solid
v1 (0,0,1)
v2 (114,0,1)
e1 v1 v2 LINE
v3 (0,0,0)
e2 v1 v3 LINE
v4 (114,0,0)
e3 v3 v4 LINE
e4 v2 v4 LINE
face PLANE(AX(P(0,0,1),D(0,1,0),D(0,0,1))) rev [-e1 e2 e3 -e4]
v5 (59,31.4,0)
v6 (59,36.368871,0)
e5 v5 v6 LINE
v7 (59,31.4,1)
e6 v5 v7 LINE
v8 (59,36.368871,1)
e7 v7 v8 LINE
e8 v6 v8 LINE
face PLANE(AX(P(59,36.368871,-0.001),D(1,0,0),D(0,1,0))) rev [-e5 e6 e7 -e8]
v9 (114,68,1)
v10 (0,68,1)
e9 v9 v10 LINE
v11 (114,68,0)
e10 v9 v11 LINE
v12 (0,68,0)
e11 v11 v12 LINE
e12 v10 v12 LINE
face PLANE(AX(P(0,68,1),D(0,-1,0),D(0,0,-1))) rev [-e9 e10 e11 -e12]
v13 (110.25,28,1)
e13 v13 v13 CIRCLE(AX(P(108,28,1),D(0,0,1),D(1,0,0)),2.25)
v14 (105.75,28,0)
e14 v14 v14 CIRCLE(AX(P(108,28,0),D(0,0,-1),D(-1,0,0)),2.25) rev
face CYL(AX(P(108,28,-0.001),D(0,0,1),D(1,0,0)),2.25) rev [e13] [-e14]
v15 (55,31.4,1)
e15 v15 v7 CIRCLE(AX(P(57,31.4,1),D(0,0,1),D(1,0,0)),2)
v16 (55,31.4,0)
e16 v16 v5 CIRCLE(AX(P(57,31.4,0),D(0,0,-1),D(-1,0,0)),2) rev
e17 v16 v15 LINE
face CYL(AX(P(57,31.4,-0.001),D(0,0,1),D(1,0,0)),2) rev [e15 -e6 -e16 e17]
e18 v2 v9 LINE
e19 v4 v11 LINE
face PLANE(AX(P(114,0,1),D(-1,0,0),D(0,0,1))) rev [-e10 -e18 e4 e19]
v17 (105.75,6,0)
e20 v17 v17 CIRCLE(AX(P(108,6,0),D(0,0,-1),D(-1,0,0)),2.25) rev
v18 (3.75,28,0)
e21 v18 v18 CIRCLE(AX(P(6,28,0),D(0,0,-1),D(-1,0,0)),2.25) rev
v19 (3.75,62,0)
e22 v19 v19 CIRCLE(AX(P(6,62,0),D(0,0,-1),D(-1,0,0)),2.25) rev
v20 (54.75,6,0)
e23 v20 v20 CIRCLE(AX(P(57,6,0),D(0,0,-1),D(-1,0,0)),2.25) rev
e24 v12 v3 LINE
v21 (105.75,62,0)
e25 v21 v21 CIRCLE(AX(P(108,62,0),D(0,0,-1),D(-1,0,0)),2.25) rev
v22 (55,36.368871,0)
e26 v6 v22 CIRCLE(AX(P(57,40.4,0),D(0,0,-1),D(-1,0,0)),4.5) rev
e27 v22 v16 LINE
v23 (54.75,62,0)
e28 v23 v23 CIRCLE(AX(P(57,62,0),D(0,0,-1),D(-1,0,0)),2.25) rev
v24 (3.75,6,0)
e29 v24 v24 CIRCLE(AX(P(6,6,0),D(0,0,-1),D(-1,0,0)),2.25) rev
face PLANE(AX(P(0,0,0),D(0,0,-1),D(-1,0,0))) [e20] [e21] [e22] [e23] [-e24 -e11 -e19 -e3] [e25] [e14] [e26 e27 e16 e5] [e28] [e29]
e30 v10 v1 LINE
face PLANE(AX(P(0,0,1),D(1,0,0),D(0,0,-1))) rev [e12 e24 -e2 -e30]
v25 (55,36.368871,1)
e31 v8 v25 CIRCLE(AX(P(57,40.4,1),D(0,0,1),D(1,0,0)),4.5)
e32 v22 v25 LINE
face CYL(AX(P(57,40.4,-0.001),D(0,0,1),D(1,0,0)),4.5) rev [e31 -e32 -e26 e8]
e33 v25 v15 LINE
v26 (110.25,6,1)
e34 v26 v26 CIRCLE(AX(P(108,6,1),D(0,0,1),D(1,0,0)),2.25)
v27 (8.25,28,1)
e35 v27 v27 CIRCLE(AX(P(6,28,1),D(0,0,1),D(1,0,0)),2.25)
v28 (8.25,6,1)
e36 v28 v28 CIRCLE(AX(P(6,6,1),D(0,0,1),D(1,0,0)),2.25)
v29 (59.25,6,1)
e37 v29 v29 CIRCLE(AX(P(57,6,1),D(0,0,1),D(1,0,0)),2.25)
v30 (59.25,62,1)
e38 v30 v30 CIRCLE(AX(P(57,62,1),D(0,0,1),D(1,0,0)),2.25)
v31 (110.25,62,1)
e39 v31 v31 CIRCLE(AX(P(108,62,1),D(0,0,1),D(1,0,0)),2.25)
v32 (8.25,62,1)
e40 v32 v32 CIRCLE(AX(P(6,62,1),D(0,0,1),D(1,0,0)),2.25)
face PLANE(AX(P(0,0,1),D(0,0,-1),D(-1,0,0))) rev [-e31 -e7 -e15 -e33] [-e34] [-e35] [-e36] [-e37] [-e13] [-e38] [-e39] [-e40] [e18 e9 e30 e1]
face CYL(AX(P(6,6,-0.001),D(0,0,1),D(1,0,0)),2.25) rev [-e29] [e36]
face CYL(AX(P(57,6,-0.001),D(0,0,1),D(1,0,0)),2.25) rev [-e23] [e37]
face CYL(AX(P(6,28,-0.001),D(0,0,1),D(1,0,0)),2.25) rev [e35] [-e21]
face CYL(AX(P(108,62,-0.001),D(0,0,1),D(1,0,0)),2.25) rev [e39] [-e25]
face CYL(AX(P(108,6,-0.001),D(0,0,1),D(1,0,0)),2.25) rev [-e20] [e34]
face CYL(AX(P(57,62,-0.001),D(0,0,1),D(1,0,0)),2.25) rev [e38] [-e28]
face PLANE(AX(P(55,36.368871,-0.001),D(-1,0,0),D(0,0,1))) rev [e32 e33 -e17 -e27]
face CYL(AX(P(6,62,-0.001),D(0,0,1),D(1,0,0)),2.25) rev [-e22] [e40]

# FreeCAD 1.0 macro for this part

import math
import FreeCAD as App
import Part
import Sketcher
from FreeCAD import Vector
Q = App.Units.Quantity

doc = App.newDocument("Part")
body = doc.addObject("PartDesign::Body", "Body")

# Sketch on XY plane
sketch1 = doc.addObject("Sketcher::SketchObject", "Sketch")
body.addObject(sketch1)
sketch1.AttachmentSupport = (doc.XY_Plane, [""])
sketch1.MapMode = "FlatFace"
sketch1.addGeometry(Part.LineSegment(Vector(0, 68, 0), Vector(0, 0, 0)), False)
sketch1.addGeometry(Part.LineSegment(Vector(0, 0, 0), Vector(114, 0, 0)), False)
sketch1.addGeometry(Part.LineSegment(Vector(114, 0, 0), Vector(114, 68, 0)), False)
sketch1.addGeometry(Part.LineSegment(Vector(114, 68, 0), Vector(0, 68, 0)), False)
sketch1.addConstraint(Sketcher.Constraint("Coincident", 0, 2, 1, 1))
sketch1.addConstraint(Sketcher.Constraint("Coincident", 1, 2, 2, 1))
sketch1.addConstraint(Sketcher.Constraint("Coincident", 2, 2, 3, 1))
sketch1.addConstraint(Sketcher.Constraint("Coincident", 3, 2, 0, 1))
sketch1.addConstraint(Sketcher.Constraint("Vertical", 0))
sketch1.addConstraint(Sketcher.Constraint("Horizontal", 1))
sketch1.addConstraint(Sketcher.Constraint("Vertical", 2))
sketch1.addConstraint(Sketcher.Constraint("Horizontal", 3))
sketch1.addConstraint(Sketcher.Constraint("Coincident", 0, 2, -1, 1))
sketch1.addConstraint(Sketcher.Constraint("DistanceX", 1, 1, 1, 2, Q("114 mm")))
sketch1.addConstraint(Sketcher.Constraint("DistanceY", 0, 2, 0, 1, Q("68 mm")))
pad1 = doc.addObject("PartDesign::Pad", "Pad")
body.addObject(pad1)
pad1.Profile = sketch1
pad1.Length = 1

# Sketch on XY plane
sketch2 = doc.addObject("Sketcher::SketchObject", "Sketch001")
body.addObject(sketch2)
sketch2.AttachmentSupport = (doc.XY_Plane, [""])
sketch2.MapMode = "FlatFace"
sketch2.AttachmentOffset = App.Placement(Vector(0, 0, 1), App.Rotation())
sketch2.addGeometry(Part.Circle(Vector(6, 62, 0), Vector(0, 0, 1), 2.2), False)
sketch2.addConstraint(Sketcher.Constraint("Diameter", 0, Q("4.5 mm")))
sketch2.addConstraint(Sketcher.Constraint("DistanceX", -1, 1, 0, 3, Q("6 mm")))
sketch2.addConstraint(Sketcher.Constraint("DistanceY", -1, 1, 0, 3, Q("62 mm")))
pocket1 = doc.addObject("PartDesign::Pocket", "Pocket")
body.addObject(pocket1)
pocket1.Profile = sketch2
pocket1.Type = "UpToFirst"

# Sketch on XY plane
sketch3 = doc.addObject("Sketcher::SketchObject", "Sketch002")
body.addObject(sketch3)
sketch3.AttachmentSupport = (doc.XY_Plane, [""])
sketch3.MapMode = "FlatFace"
sketch3.AttachmentOffset = App.Placement(Vector(0, 0, 1), App.Rotation())
sketch3.addGeometry(Part.Circle(Vector(6, 28, 0), Vector(0, 0, 1), 2.2), False)
sketch3.addConstraint(Sketcher.Constraint("Diameter", 0, Q("4.5 mm")))
sketch3.addConstraint(Sketcher.Constraint("DistanceX", -1, 1, 0, 3, Q("6 mm")))
sketch3.addConstraint(Sketcher.Constraint("DistanceY", -1, 1, 0, 3, Q("28 mm")))
pocket2 = doc.addObject("PartDesign::Pocket", "Pocket001")
body.addObject(pocket2)
pocket2.Profile = sketch3
pocket2.Type = "UpToFirst"

# Sketch on XY plane
sketch4 = doc.addObject("Sketcher::SketchObject", "Sketch003")
body.addObject(sketch4)
sketch4.AttachmentSupport = (doc.XY_Plane, [""])
sketch4.MapMode = "FlatFace"
sketch4.AttachmentOffset = App.Placement(Vector(0, 0, 1), App.Rotation())
sketch4.addGeometry(Part.Circle(Vector(6, 6, 0), Vector(0, 0, 1), 2.2), False)
sketch4.addConstraint(Sketcher.Constraint("Diameter", 0, Q("4.5 mm")))
sketch4.addConstraint(Sketcher.Constraint("DistanceX", -1, 1, 0, 3, Q("6 mm")))
sketch4.addConstraint(Sketcher.Constraint("DistanceY", -1, 1, 0, 3, Q("6 mm")))
pocket3 = doc.addObject("PartDesign::Pocket", "Pocket002")
body.addObject(pocket3)
pocket3.Profile = sketch4
pocket3.Type = "UpToFirst"

# Sketch on XY plane
sketch5 = doc.addObject("Sketcher::SketchObject", "Sketch004")
body.addObject(sketch5)
sketch5.AttachmentSupport = (doc.XY_Plane, [""])
sketch5.MapMode = "FlatFace"
sketch5.AttachmentOffset = App.Placement(Vector(0, 0, 1), App.Rotation())
sketch5.addGeometry(Part.Circle(Vector(57, 6, 0), Vector(0, 0, 1), 2.2), False)
sketch5.addConstraint(Sketcher.Constraint("Diameter", 0, Q("4.5 mm")))
sketch5.addConstraint(Sketcher.Constraint("DistanceX", -1, 1, 0, 3, Q("57 mm")))
sketch5.addConstraint(Sketcher.Constraint("DistanceY", -1, 1, 0, 3, Q("6 mm")))
pocket4 = doc.addObject("PartDesign::Pocket", "Pocket003")
body.addObject(pocket4)
pocket4.Profile = sketch5
pocket4.Type = "UpToFirst"

# Sketch on XY plane
sketch6 = doc.addObject("Sketcher::SketchObject", "Sketch005")
body.addObject(sketch6)
sketch6.AttachmentSupport = (doc.XY_Plane, [""])
sketch6.MapMode = "FlatFace"
sketch6.AttachmentOffset = App.Placement(Vector(0, 0, 1), App.Rotation())
sketch6.addGeometry(Part.Circle(Vector(57, 62, 0), Vector(0, 0, 1), 2.2), False)
sketch6.addConstraint(Sketcher.Constraint("Diameter", 0, Q("4.5 mm")))
sketch6.addConstraint(Sketcher.Constraint("DistanceX", -1, 1, 0, 3, Q("57 mm")))
sketch6.addConstraint(Sketcher.Constraint("DistanceY", -1, 1, 0, 3, Q("62 mm")))
pocket5 = doc.addObject("PartDesign::Pocket", "Pocket004")
body.addObject(pocket5)
pocket5.Profile = sketch6
pocket5.Type = "UpToFirst"

# Sketch on XY plane
sketch7 = doc.addObject("Sketcher::SketchObject", "Sketch006")
body.addObject(sketch7)
sketch7.AttachmentSupport = (doc.XY_Plane, [""])
sketch7.MapMode = "FlatFace"
sketch7.AttachmentOffset = App.Placement(Vector(0, 0, 1), App.Rotation())
sketch7.addGeometry(Part.Circle(Vector(108, 62, 0), Vector(0, 0, 1), 2.2), False)
sketch7.addConstraint(Sketcher.Constraint("Diameter", 0, Q("4.5 mm")))
sketch7.addConstraint(Sketcher.Constraint("DistanceX", -1, 1, 0, 3, Q("108 mm")))
sketch7.addConstraint(Sketcher.Constraint("DistanceY", -1, 1, 0, 3, Q("62 mm")))
pocket6 = doc.addObject("PartDesign::Pocket", "Pocket005")
body.addObject(pocket6)
pocket6.Profile = sketch7
pocket6.Type = "UpToFirst"

# Sketch on XY plane
sketch8 = doc.addObject("Sketcher::SketchObject", "Sketch007")
body.addObject(sketch8)
sketch8.AttachmentSupport = (doc.XY_Plane, [""])
sketch8.MapMode = "FlatFace"
sketch8.AttachmentOffset = App.Placement(Vector(0, 0, 1), App.Rotation())
sketch8.addGeometry(Part.Circle(Vector(108, 28, 0), Vector(0, 0, 1), 2.2), False)
sketch8.addConstraint(Sketcher.Constraint("Diameter", 0, Q("4.5 mm")))
sketch8.addConstraint(Sketcher.Constraint("DistanceX", -1, 1, 0, 3, Q("108 mm")))
sketch8.addConstraint(Sketcher.Constraint("DistanceY", -1, 1, 0, 3, Q("28 mm")))
pocket7 = doc.addObject("PartDesign::Pocket", "Pocket006")
body.addObject(pocket7)
pocket7.Profile = sketch8
pocket7.Type = "UpToFirst"

# Sketch on XY plane
sketch9 = doc.addObject("Sketcher::SketchObject", "Sketch008")
body.addObject(sketch9)
sketch9.AttachmentSupport = (doc.XY_Plane, [""])
sketch9.MapMode = "FlatFace"
sketch9.AttachmentOffset = App.Placement(Vector(0, 0, 1), App.Rotation())
sketch9.addGeometry(Part.Circle(Vector(108, 6, 0), Vector(0, 0, 1), 2.2), False)
sketch9.addConstraint(Sketcher.Constraint("Diameter", 0, Q("4.5 mm")))
sketch9.addConstraint(Sketcher.Constraint("DistanceX", -1, 1, 0, 3, Q("108 mm")))
sketch9.addConstraint(Sketcher.Constraint("DistanceY", -1, 1, 0, 3, Q("6 mm")))
pocket8 = doc.addObject("PartDesign::Pocket", "Pocket007")
body.addObject(pocket8)
pocket8.Profile = sketch9
pocket8.Type = "UpToFirst"

# Sketch on XY plane
sketch10 = doc.addObject("Sketcher::SketchObject", "Sketch009")
body.addObject(sketch10)
sketch10.AttachmentSupport = (doc.XY_Plane, [""])
sketch10.MapMode = "FlatFace"
sketch10.AttachmentOffset = App.Placement(Vector(0, 0, 1), App.Rotation())
sketch10.addGeometry(Part.LineSegment(Vector(59, 31.4, 0), Vector(59, 36.4, 0)), False)
sketch10.addGeometry(Part.ArcOfCircle(Part.Circle(Vector(57, 40.4, 0), Vector(0, 0, 1), 4.5), math.radians(-64), math.radians(244)), False)
sketch10.addGeometry(Part.LineSegment(Vector(55, 36.4, 0), Vector(55, 31.4, 0)), False)
sketch10.addGeometry(Part.ArcOfCircle(Part.Circle(Vector(57, 31.4, 0), Vector(0, 0, 1), 2), math.radians(180), math.radians(360)), False)
sketch10.addConstraint(Sketcher.Constraint("Coincident", 0, 2, 1, 1))
sketch10.addConstraint(Sketcher.Constraint("Coincident", 1, 2, 2, 1))
sketch10.addConstraint(Sketcher.Constraint("Tangent", 2, 2, 3, 1))
sketch10.addConstraint(Sketcher.Constraint("Tangent", 3, 2, 0, 1))
sketch10.addConstraint(Sketcher.Constraint("Vertical", 0))
sketch10.addConstraint(Sketcher.Constraint("Vertical", 2))
sketch10.addConstraint(Sketcher.Constraint("Horizontal", 0, 2, 1, 2))
sketch10.addConstraint(Sketcher.Constraint("Radius", 3, Q("2 mm")))
sketch10.addConstraint(Sketcher.Constraint("Radius", 1, Q("4.5 mm")))
sketch10.addConstraint(Sketcher.Constraint("DistanceX", -1, 1, 1, 3, Q("57 mm")))
sketch10.addConstraint(Sketcher.Constraint("DistanceY", 3, 3, 1, 3, Q("9 mm")))
sketch10.addConstraint(Sketcher.Constraint("DistanceY", -1, 1, 1, 3, Q("40.4 mm")))
pocket9 = doc.addObject("PartDesign::Pocket", "Pocket008")
body.addObject(pocket9)
pocket9.Profile = sketch10
pocket9.Type = "UpToFirst"

doc.recompute()
